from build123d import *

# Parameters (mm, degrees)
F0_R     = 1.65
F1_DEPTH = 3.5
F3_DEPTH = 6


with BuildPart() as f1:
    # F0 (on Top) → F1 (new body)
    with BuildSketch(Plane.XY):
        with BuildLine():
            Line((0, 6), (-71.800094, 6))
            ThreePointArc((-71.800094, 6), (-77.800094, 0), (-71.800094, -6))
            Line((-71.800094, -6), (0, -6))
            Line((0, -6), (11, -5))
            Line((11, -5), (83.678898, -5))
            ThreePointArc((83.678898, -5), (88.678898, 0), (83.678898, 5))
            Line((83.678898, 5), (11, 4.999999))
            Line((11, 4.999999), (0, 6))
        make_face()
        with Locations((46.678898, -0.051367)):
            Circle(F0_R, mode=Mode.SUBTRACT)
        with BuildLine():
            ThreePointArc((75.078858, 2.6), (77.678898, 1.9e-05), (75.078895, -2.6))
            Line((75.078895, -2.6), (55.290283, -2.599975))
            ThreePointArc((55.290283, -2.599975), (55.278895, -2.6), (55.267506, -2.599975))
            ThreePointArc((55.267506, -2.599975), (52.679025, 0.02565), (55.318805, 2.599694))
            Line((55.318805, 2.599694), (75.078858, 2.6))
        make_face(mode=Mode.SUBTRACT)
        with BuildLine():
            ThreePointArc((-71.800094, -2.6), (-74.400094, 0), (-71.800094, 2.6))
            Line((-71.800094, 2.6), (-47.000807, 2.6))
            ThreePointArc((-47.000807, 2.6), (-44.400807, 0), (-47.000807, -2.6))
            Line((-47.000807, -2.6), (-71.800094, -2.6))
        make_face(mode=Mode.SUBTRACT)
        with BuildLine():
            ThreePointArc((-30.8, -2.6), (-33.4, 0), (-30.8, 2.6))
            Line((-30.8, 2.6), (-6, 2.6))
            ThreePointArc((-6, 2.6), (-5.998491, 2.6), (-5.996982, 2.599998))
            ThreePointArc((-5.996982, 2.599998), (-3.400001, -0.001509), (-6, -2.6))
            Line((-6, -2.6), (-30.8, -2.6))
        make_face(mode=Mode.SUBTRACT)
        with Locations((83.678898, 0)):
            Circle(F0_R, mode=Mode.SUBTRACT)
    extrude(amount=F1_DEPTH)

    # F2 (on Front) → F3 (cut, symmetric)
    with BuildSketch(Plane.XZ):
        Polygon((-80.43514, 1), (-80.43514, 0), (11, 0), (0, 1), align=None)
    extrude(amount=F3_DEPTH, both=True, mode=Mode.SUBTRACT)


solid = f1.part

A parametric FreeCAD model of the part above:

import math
import FreeCAD as App
import Part
import Sketcher
from FreeCAD import Vector

doc = App.newDocument("Part")
body = doc.addObject("PartDesign::Body", "Body")

sketch1 = doc.addObject("Sketcher::SketchObject", "Sketch")
body.addObject(sketch1)
sketch1.AttachmentSupport = (doc.XY_Plane, [""])
sketch1.MapMode = "FlatFace"
sketch1.addGeometry(Part.LineSegment(Vector(0, 6, 0), Vector(-71.8001, 6, 0)), False)
sketch1.addGeometry(Part.ArcOfCircle(Part.Circle(Vector(-71.8001, 0, 0), Vector(0, 0, 1), 6), math.radians(90), math.radians(270)), False)
sketch1.addGeometry(Part.LineSegment(Vector(-71.8001, -6, 0), Vector(0, -6, 0)), False)
sketch1.addGeometry(Part.LineSegment(Vector(0, -6, 0), Vector(11, -5, 0)), False)
sketch1.addGeometry(Part.LineSegment(Vector(11, -5, 0), Vector(83.6789, -5, 0)), False)
sketch1.addGeometry(Part.ArcOfCircle(Part.Circle(Vector(83.6789, 0, 0), Vector(0, 0, 1), 5), math.radians(-90), math.radians(90)), False)
sketch1.addGeometry(Part.LineSegment(Vector(83.6789, 5, 0), Vector(11, 5, 0)), False)
sketch1.addGeometry(Part.LineSegment(Vector(11, 5, 0), Vector(0, 6, 0)), False)
sketch1.addGeometry(Part.LineSegment(Vector(-47.0008, -2.6, 0), Vector(-71.8001, -2.6, 0)), False)
sketch1.addGeometry(Part.ArcOfCircle(Part.Circle(Vector(-71.8001, 0, 0), Vector(0, 0, 1), 2.6), math.radians(90), math.radians(270)), False)
sketch1.addGeometry(Part.LineSegment(Vector(-71.8001, 2.6, 0), Vector(-47.0008, 2.6, 0)), False)
sketch1.addGeometry(Part.ArcOfCircle(Part.Circle(Vector(-47.0008, 0, 0), Vector(0, 0, 1), 2.6), math.radians(-90), math.radians(90)), False)
sketch1.addGeometry(Part.LineSegment(Vector(-6, -2.6, 0), Vector(-30.8, -2.6, 0)), False)
sketch1.addGeometry(Part.ArcOfCircle(Part.Circle(Vector(-30.8, 0, 0), Vector(0, 0, 1), 2.6), math.radians(90), math.radians(270)), False)
sketch1.addGeometry(Part.LineSegment(Vector(-30.8, 2.6, 0), Vector(-6, 2.6, 0)), False)
sketch1.addGeometry(Part.ArcOfCircle(Part.Circle(Vector(-5.9992, 1.4615, 0), Vector(0, 0, 1), 1.1385), math.radians(89.89), math.radians(90.04)), False)
sketch1.addGeometry(Part.ArcOfCircle(Part.Circle(Vector(-6, 0, 0), Vector(0, 0, 1), 2.6), math.radians(-90), math.radians(90)), False)
sketch1.addGeometry(Part.Circle(Vector(46.6789, -0.0514, 0), Vector(0, 0, 1), 1.65), False)
sketch1.addGeometry(Part.Circle(Vector(83.6789, 0, 0), Vector(0, 0, 1), 1.65), False)
sketch1.addGeometry(Part.LineSegment(Vector(55.3188, 2.5997, 0), Vector(75.0789, 2.6, 0)), False)
sketch1.addGeometry(Part.ArcOfCircle(Part.Circle(Vector(75.0789, 0, 0), Vector(0, 0, 1), 2.6), math.radians(-90), math.radians(90)), False)
sketch1.addGeometry(Part.LineSegment(Vector(75.0789, -2.6, 0), Vector(55.2903, -2.6, 0)), False)
sketch1.addGeometry(Part.ArcOfCircle(Part.Circle(Vector(55.2789, -0.006, 0), Vector(0, 0, 1), 2.594), math.radians(-90.25), math.radians(-89.75)), False)
sketch1.addGeometry(Part.ArcOfCircle(Part.Circle(Vector(55.2789, 0, 0), Vector(0, 0, 1), 2.6), math.radians(89), math.radians(270)), False)
sketch1.addConstraint(Sketcher.Constraint("Tangent", 0, 2, 1, 1))
sketch1.addConstraint(Sketcher.Constraint("Tangent", 1, 2, 2, 1))
sketch1.addConstraint(Sketcher.Constraint("Coincident", 2, 2, 3, 1))
sketch1.addConstraint(Sketcher.Constraint("Coincident", 3, 2, 4, 1))
sketch1.addConstraint(Sketcher.Constraint("Tangent", 4, 2, 5, 1))
sketch1.addConstraint(Sketcher.Constraint("Tangent", 5, 2, 6, 1))
sketch1.addConstraint(Sketcher.Constraint("Coincident", 6, 2, 7, 1))
sketch1.addConstraint(Sketcher.Constraint("Coincident", 7, 2, 0, 1))
sketch1.addConstraint(Sketcher.Constraint("Tangent", 8, 2, 9, 2))
sketch1.addConstraint(Sketcher.Constraint("Tangent", 9, 1, 10, 1))
sketch1.addConstraint(Sketcher.Constraint("Tangent", 10, 2, 11, 2))
sketch1.addConstraint(Sketcher.Constraint("Tangent", 11, 1, 8, 1))
sketch1.addConstraint(Sketcher.Constraint("Tangent", 12, 2, 13, 2))
sketch1.addConstraint(Sketcher.Constraint("Tangent", 13, 1, 14, 1))
sketch1.addConstraint(Sketcher.Constraint("Coincident", 14, 2, 15, 2))
sketch1.addConstraint(Sketcher.Constraint("Coincident", 15, 1, 16, 2))
sketch1.addConstraint(Sketcher.Constraint("Tangent", 16, 1, 12, 1))
sketch1.addConstraint(Sketcher.Constraint("Tangent", 19, 2, 20, 2))
sketch1.addConstraint(Sketcher.Constraint("Tangent", 20, 1, 21, 1))
sketch1.addConstraint(Sketcher.Constraint("Coincident", 21, 2, 22, 2))
sketch1.addConstraint(Sketcher.Constraint("Coincident", 22, 1, 23, 2))
sketch1.addConstraint(Sketcher.Constraint("Coincident", 23, 1, 19, 1))
sketch1.addConstraint(Sketcher.Constraint("Horizontal", 0))
sketch1.addConstraint(Sketcher.Constraint("Horizontal", 2))
sketch1.addConstraint(Sketcher.Constraint("Horizontal", 4))
sketch1.addConstraint(Sketcher.Constraint("Horizontal", 6))
sketch1.addConstraint(Sketcher.Constraint("Horizontal", 8))
sketch1.addConstraint(Sketcher.Constraint("Horizontal", 10))
sketch1.addConstraint(Sketcher.Constraint("Horizontal", 12))
sketch1.addConstraint(Sketcher.Constraint("Horizontal", 14))
sketch1.addConstraint(Sketcher.Constraint("Coincident", 9, 3, 1, 3))
sketch1.addConstraint(Sketcher.Constraint("Coincident", 18, 3, 5, 3))
sketch1.addConstraint(Sketcher.Constraint("Equal", 11, 13))
sketch1.addConstraint(Sketcher.Constraint("Equal", 17, 18))
sketch1.addConstraint(Sketcher.Constraint("Equal", 16, 20))
sketch1.addConstraint(Sketcher.Constraint("Equal", 20, 23))
sketch1.addConstraint(Sketcher.Constraint("Symmetric", 2, 2, 7, 2, -1, 1))
sketch1.addConstraint(Sketcher.Constraint("Symmetric", 3, 2, 6, 2, -1))
sketch1.addConstraint(Sketcher.Constraint("Symmetric", 14, 2, 16, 1, -1))
sketch1.addConstraint(Sketcher.Constraint("PointOnObject", 20, 3, -1))
sketch1.addConstraint(Sketcher.Constraint("PointOnObject", 23, 3, -1))
sketch1.addConstraint(Sketcher.Constraint("PointOnObject", 2, 2, -2))
sketch1.addConstraint(Sketcher.Constraint("Horizontal", 21, 2, 22, 1))
sketch1.addConstraint(Sketcher.Constraint("Radius", 1, 6.0))
sketch1.addConstraint(Sketcher.Constraint("Radius", 5, 5.0))
sketch1.addConstraint(Sketcher.Constraint("Diameter", 17, 3.3))
sketch1.addConstraint(Sketcher.Constraint("Radius", 9, 2.6))
sketch1.addConstraint(Sketcher.Constraint("DistanceX", 12, 2, 12, 1, 24.8))
sketch1.addConstraint(Sketcher.Constraint("DistanceX", 16, 3, -1, 1, 6.0))
sketch1.addConstraint(Sketcher.Constraint("DistanceX", -1, 1, 3, 2, 11.0))
sketch1.addConstraint(Sketcher.Constraint("DistanceX", 17, 3, 5, 3, 37.0))
sketch1.addConstraint(Sketcher.Constraint("DistanceX", 20, 3, 5, 3, 8.6))
sketch1.addConstraint(Sketcher.Constraint("DistanceX", 17, 3, 23, 3, 8.600001))
sketch1.addConstraint(Sketcher.Constraint("Radius", 15, 1.138542))
sketch1.addConstraint(Sketcher.Constraint("Radius", 22, 2.593971))
sketch1.addConstraint(Sketcher.Constraint("DistanceX", 4, 1, 4, 2, 72.678898))
sketch1.addConstraint(Sketcher.Constraint("DistanceX", 22, 1, 23, 1, 0.051299))
sketch1.addConstraint(Sketcher.Constraint("DistanceX", 0, 2, 0, 1, 71.800094))
sketch1.addConstraint(Sketcher.Constraint("DistanceX", 8, 2, 8, 1, 24.799287))
sketch1.addConstraint(Sketcher.Constraint("DistanceY", 22, 3, -1, 1, 0.006029))
sketch1.addConstraint(Sketcher.Constraint("DistanceX", 15, 1, -1, 1, 5.996982))
sketch1.addConstraint(Sketcher.Constraint("DistanceX", 11, 3, 15, 3, 41.001562))
sketch1.addConstraint(Sketcher.Constraint("DistanceY", 17, 3, 22, 3, 0.045338))
sketch1.addConstraint(Sketcher.Constraint("DistanceX", 22, 3, 21, 2, 0.011389))
pad1 = doc.addObject("PartDesign::Pad", "Pad")
body.addObject(pad1)
pad1.Profile = sketch1
pad1.Length = 3.5

sketch2 = doc.addObject("Sketcher::SketchObject", "Sketch001")
body.addObject(sketch2)
sketch2.AttachmentSupport = (doc.XZ_Plane, [""])
sketch2.MapMode = "FlatFace"
sketch2.addGeometry(Part.LineSegment(Vector(-80.4, 1, 0), Vector(-80.4, 0, 0)), False)
sketch2.addGeometry(Part.LineSegment(Vector(-80.4, 0, 0), Vector(11, 0, 0)), False)
sketch2.addGeometry(Part.LineSegment(Vector(11, 0, 0), Vector(0, 1, 0)), False)
sketch2.addGeometry(Part.LineSegment(Vector(0, 1, 0), Vector(-80.4, 1, 0)), False)
sketch2.addConstraint(Sketcher.Constraint("Coincident", 0, 2, 1, 1))
sketch2.addConstraint(Sketcher.Constraint("Coincident", 1, 2, 2, 1))
sketch2.addConstraint(Sketcher.Constraint("Coincident", 2, 2, 3, 1))
sketch2.addConstraint(Sketcher.Constraint("Coincident", 3, 2, 0, 1))
sketch2.addConstraint(Sketcher.Constraint("Vertical", 0))
sketch2.addConstraint(Sketcher.Constraint("Horizontal", 1))
sketch2.addConstraint(Sketcher.Constraint("Horizontal", 3))
sketch2.addConstraint(Sketcher.Constraint("PointOnObject", 0, 2, -1))
sketch2.addConstraint(Sketcher.Constraint("PointOnObject", 2, 2, -2))
sketch2.addConstraint(Sketcher.Constraint("DistanceY", 0, 2, 0, 1, 1.0))
sketch2.addConstraint(Sketcher.Constraint("DistanceX", -1, 1, 1, 2, 11.0))
sketch2.addConstraint(Sketcher.Constraint("DistanceX", 1, 1, 1, 2, 91.43514))
pocket1 = doc.addObject("PartDesign::Pocket", "Pocket")
body.addObject(pocket1)
pocket1.Profile = sketch2
pocket1.Length = 12
pocket1.Midplane = True

doc.recompute()
